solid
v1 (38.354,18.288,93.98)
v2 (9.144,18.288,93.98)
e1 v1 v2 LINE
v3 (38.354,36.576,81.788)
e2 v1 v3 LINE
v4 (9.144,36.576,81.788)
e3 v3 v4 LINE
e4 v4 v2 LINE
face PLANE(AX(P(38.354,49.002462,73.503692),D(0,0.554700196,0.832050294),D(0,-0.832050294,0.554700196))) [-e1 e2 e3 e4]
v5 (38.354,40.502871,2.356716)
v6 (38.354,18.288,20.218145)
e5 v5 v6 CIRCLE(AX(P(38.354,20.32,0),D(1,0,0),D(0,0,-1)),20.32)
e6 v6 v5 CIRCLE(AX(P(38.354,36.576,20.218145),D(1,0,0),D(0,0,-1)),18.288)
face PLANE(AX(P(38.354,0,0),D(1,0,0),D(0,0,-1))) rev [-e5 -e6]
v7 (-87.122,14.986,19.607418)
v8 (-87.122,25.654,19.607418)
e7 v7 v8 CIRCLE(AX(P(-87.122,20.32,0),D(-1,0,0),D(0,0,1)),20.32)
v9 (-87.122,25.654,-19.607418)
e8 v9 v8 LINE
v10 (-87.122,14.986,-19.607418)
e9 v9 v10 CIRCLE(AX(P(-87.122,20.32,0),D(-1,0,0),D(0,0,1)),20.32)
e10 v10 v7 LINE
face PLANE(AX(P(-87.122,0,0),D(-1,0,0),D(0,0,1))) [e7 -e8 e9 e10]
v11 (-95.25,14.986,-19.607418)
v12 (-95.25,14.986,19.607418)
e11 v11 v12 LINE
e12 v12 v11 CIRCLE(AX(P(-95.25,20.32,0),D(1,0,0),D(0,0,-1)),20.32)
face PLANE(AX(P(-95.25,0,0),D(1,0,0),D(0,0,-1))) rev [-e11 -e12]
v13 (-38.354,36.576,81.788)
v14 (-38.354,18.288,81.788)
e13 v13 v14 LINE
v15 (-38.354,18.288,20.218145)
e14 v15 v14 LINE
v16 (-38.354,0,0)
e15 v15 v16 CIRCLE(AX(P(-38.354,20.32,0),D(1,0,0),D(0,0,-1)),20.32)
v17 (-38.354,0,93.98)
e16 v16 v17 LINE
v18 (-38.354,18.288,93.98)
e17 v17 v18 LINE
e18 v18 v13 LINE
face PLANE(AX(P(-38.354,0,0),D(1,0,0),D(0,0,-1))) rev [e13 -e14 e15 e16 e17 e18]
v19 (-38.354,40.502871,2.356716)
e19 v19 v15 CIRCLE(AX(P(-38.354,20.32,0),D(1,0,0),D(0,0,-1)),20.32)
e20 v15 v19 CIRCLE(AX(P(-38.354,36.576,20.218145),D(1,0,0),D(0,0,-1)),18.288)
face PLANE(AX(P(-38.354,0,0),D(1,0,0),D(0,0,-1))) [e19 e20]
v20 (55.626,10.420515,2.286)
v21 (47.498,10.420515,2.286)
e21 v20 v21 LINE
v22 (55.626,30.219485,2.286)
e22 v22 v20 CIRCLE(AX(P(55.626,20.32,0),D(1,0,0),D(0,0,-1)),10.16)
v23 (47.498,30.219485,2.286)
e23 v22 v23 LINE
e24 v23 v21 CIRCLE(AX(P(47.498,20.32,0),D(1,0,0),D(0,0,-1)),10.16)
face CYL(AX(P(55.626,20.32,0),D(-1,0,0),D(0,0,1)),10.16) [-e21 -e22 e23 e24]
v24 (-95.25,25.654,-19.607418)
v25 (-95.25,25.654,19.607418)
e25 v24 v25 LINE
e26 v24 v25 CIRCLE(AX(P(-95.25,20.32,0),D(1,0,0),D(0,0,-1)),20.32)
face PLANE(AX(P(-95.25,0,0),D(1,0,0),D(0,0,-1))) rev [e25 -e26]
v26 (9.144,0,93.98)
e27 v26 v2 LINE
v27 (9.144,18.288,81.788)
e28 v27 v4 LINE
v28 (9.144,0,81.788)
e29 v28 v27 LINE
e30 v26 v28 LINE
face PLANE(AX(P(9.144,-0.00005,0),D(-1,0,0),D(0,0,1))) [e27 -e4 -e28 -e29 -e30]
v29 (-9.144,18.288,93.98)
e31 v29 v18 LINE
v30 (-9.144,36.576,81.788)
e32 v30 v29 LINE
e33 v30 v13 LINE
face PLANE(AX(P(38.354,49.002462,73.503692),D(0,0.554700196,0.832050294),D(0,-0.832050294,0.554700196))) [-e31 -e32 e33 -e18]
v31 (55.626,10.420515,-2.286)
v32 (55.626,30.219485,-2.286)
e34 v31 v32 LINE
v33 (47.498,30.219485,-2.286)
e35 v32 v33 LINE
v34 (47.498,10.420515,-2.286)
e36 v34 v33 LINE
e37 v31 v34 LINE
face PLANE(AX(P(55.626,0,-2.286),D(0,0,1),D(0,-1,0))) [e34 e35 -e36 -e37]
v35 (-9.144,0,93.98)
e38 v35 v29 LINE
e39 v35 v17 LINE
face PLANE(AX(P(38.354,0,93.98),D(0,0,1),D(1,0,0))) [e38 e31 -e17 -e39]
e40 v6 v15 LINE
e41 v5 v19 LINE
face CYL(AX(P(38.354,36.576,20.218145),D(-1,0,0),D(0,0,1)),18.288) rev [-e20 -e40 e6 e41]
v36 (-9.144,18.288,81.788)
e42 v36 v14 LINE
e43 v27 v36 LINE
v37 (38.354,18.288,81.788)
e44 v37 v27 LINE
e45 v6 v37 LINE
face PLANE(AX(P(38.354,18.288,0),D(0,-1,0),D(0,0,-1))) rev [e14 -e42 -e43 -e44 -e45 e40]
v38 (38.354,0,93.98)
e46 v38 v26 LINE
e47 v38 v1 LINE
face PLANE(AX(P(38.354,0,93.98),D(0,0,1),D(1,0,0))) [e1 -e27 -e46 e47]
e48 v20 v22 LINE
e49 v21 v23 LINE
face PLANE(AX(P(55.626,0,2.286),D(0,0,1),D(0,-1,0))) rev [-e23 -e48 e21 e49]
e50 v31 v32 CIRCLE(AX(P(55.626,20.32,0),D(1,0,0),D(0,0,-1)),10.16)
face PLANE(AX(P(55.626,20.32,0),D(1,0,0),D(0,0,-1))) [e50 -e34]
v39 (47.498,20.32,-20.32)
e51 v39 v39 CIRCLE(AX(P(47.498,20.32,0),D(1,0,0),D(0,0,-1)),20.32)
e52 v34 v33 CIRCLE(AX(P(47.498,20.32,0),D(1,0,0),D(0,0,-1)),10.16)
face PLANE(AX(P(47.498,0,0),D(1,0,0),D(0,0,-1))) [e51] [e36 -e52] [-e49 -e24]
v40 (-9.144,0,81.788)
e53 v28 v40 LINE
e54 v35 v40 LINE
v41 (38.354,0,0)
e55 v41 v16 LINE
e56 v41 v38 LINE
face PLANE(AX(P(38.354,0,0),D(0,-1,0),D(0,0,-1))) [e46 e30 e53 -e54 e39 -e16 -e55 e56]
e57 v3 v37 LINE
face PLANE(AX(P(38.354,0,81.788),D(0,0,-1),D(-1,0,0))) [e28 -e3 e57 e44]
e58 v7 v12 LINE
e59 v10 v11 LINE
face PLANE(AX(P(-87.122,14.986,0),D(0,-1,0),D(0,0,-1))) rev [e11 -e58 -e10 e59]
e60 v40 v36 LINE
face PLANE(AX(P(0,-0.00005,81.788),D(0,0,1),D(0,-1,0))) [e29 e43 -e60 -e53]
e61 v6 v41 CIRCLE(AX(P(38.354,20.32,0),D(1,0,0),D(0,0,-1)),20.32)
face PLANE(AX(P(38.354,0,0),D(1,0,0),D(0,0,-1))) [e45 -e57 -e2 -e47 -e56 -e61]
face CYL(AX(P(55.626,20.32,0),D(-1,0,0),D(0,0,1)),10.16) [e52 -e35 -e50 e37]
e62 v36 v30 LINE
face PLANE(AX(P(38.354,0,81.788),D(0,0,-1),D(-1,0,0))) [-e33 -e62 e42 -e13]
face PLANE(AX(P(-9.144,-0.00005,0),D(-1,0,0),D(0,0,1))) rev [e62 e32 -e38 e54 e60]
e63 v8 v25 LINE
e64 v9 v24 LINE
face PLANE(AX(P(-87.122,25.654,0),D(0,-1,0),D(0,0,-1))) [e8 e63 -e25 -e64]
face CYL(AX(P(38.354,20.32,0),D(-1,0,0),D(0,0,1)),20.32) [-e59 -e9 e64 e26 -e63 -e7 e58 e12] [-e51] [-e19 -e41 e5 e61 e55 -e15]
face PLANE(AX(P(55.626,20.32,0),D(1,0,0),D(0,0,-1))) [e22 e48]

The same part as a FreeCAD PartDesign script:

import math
import FreeCAD as App
import Part
import Sketcher
from FreeCAD import Vector
Q = App.Units.Quantity

doc = App.newDocument("Part")
body = doc.addObject("PartDesign::Body", "Body")

# Sketch on YZ plane
sketch1 = body.newObject("Sketcher::SketchObject", "Sketch")
sketch1.AttachmentSupport = (doc.getObject("YZ_Plane"), [""])
sketch1.MapMode = "FlatFace"
sketch1.addGeometry([
    Part.LineSegment(Vector(18.288, 20.218145, 0), Vector(18.288, 81.788, 0)),  # 0
    Part.LineSegment(Vector(18.288, 81.788, 0), Vector(36.576, 81.788, 0)),  # 1
    Part.LineSegment(Vector(36.576, 81.788, 0), Vector(18.288, 93.98, 0)),  # 2
    Part.LineSegment(Vector(18.288, 93.98, 0), Vector(0, 93.98, 0)),  # 3
    Part.LineSegment(Vector(0, 93.98, 0), Vector(0, 0, 0)),  # 4
    Part.ArcOfCircle(Part.Circle(Vector(20.32, 0, 0), Vector(0, 0, 1), 20.32), math.radians(-180), math.radians(6.660161)),  # 5
    Part.ArcOfCircle(Part.Circle(Vector(36.576, 20.218145, 0), Vector(0, 0, 1), 18.288), math.radians(-90), math.radians(-77.600669)),  # 6
    Part.ArcOfCircle(Part.Circle(Vector(36.576, 20.218145, 0), Vector(0, 0, 1), 18.288), math.radians(-180), math.radians(-90)),  # 7
], False)
sketch1.addConstraint([
    Sketcher.Constraint("Coincident", 0, 2, 1, 1),
    Sketcher.Constraint("Coincident", 1, 2, 2, 1),
    Sketcher.Constraint("Coincident", 2, 2, 3, 1),
    Sketcher.Constraint("Coincident", 3, 2, 4, 1),
    Sketcher.Constraint("Tangent", 4, 2, 5, 1),
    Sketcher.Constraint("Coincident", 5, 2, 6, 2),
    Sketcher.Constraint("Tangent", 6, 1, 7, 2),
    Sketcher.Constraint("Tangent", 7, 1, 0, 1),
    Sketcher.Constraint("Vertical", 0),
    Sketcher.Constraint("Horizontal", 1),
    Sketcher.Constraint("Horizontal", 3),
    Sketcher.Constraint("Vertical", 4),
    Sketcher.Constraint("Coincident", 4, 2, -1, 1),
    Sketcher.Constraint("Equal", 6, 7),
    Sketcher.Constraint("Vertical", 7, 3, 1, 2),
    Sketcher.Constraint("Vertical", 0, 2, 2, 2),
    Sketcher.Constraint("Vertical", 1, 2, 6, 1),
    Sketcher.Constraint("Equal", 1, 3),
    Sketcher.Constraint("Radius", 5, Q("0.8 in")),
    Sketcher.Constraint("Radius", 6, Q("0.72 in")),
    Sketcher.Constraint("DistanceY", 4, 2, 4, 1, Q("3.7 in")),
    Sketcher.Constraint("DistanceY", -1, 1, 0, 2, Q("3.22 in")),
    Sketcher.Constraint("DistanceY", 0, 1, 0, 2, Q("61.569855 mm")),
])
pad1 = body.newObject("PartDesign::Pad", "Pad")
pad1.Profile = sketch1
pad1.Length = Q("3.02 in")
pad1.Midplane = True

# Sketch on YZ plane
sketch2 = body.newObject("Sketcher::SketchObject", "Sketch001")
sketch2.AttachmentSupport = (doc.getObject("YZ_Plane"), [""])
sketch2.MapMode = "FlatFace"
sketch2.AttachmentOffset = App.Placement(Vector(0, 0, 1.51 * 25.4), App.Rotation())
sketch2.addGeometry(Part.Circle(Vector(20.32, 0, 0), Vector(0, 0, 1), 20.32), False)
sketch2.addConstraint([
    Sketcher.Constraint("PointOnObject", 0, 3, -1),
    Sketcher.Constraint("Diameter", 0, Q("1.6 in")),
    Sketcher.Constraint("DistanceX", -1, 1, 0, 3, Q("0.8 in")),
])
pad2 = body.newObject("PartDesign::Pad", "Pad001")
pad2.Profile = sketch2
pad2.Length = Q("0.36 in")

# Sketch on YZ plane
sketch3 = body.newObject("Sketcher::SketchObject", "Sketch002")
sketch3.AttachmentSupport = (doc.getObject("YZ_Plane"), [""])
sketch3.MapMode = "FlatFace"
sketch3.AttachmentOffset = App.Placement(Vector(0, 0, 1.87 * 25.4), App.Rotation())
sketch3.addGeometry([
    Part.LineSegment(Vector(10.420515, 2.286, 0), Vector(30.219485, 2.286, 0)),  # 0
    Part.ArcOfCircle(Part.Circle(Vector(20.32, 0, 0), Vector(0, 0, 1), 10.16), math.radians(13.002878), math.radians(18.138502)),  # 1
    Part.ArcOfCircle(Part.Circle(Vector(20.32, 0, 0), Vector(0, 0, 1), 10.16), math.radians(18.138502), math.radians(84.26083)),  # 2
    Part.ArcOfCircle(Part.Circle(Vector(20.32, 0, 0), Vector(0, 0, 1), 10.16), math.radians(84.26083), math.radians(166.997122)),  # 3
    Part.ArcOfCircle(Part.Circle(Vector(20.32, 0, 0), Vector(0, 0, 1), 10.16), math.radians(-90), math.radians(-13.002878)),  # 4
    Part.LineSegment(Vector(30.219485, -2.286, 0), Vector(10.420515, -2.286, 0)),  # 5
    Part.ArcOfCircle(Part.Circle(Vector(20.32, 0, 0), Vector(0, 0, 1), 10.16), math.radians(-166.997122), math.radians(-90)),  # 6
], False)
sketch3.addConstraint([
    Sketcher.Constraint("Coincident", 0, 2, 1, 1),
    Sketcher.Constraint("Tangent", 1, 2, 2, 1),
    Sketcher.Constraint("Tangent", 2, 2, 3, 1),
    Sketcher.Constraint("Coincident", 3, 2, 0, 1),
    Sketcher.Constraint("Coincident", 4, 2, 5, 1),
    Sketcher.Constraint("Coincident", 5, 2, 6, 1),
    Sketcher.Constraint("Tangent", 6, 2, 4, 1),
    Sketcher.Constraint("Horizontal", 0),
    Sketcher.Constraint("Horizontal", 5),
    Sketcher.Constraint("Coincident", 3, 3, 1, 3),
    Sketcher.Constraint("Coincident", 4, 3, 1, 3),
    Sketcher.Constraint("Equal", 3, 4),
    Sketcher.Constraint("Equal", 4, 6),
    Sketcher.Constraint("Symmetric", 0, 2, 4, 2, -1),
    Sketcher.Constraint("Vertical", 4, 3, 6, 2),
    Sketcher.Constraint("Radius", 1, Q("0.4 in")),
    Sketcher.Constraint("DistanceX", -1, 1, 1, 3, Q("0.8 in")),
    Sketcher.Constraint("DistanceY", -1, 1, 0, 2, Q("0.09 in")),
    Sketcher.Constraint("DistanceX", -1, 1, 2, 2, Q("0.84 in")),
    Sketcher.Constraint("DistanceY", -1, 1, 1, 2, Q("3.162961 mm")),
])
pad3 = body.newObject("PartDesign::Pad", "Pad002")
pad3.Profile = sketch3
pad3.Length = Q("0.32 in")

# Sketch on YZ plane
sketch4 = body.newObject("Sketcher::SketchObject", "Sketch003")
sketch4.AttachmentSupport = (doc.getObject("YZ_Plane"), [""])
sketch4.MapMode = "FlatFace"
sketch4.AttachmentOffset = App.Placement(Vector(0, 0, -1.51 * 25.4), App.Rotation())
sketch4.addGeometry(Part.Circle(Vector(20.32, 0, 0), Vector(0, 0, 1), 20.32), False)
sketch4.addConstraint([
    Sketcher.Constraint("PointOnObject", 0, 3, -1),
    Sketcher.Constraint("Diameter", 0, Q("1.6 in")),
    Sketcher.Constraint("DistanceX", -1, 1, 0, 3, Q("0.8 in")),
])
pad4 = body.newObject("PartDesign::Pad", "Pad003")
pad4.Profile = sketch4
pad4.Length = Q("2.24 in")
pad4.Reversed = True

# Sketch on YZ plane
sketch5 = body.newObject("Sketcher::SketchObject", "Sketch004")
sketch5.AttachmentSupport = (doc.getObject("YZ_Plane"), [""])
sketch5.MapMode = "FlatFace"
sketch5.AttachmentOffset = App.Placement(Vector(0, 0, -3.75 * 25.4), App.Rotation())
sketch5.addGeometry([
    Part.LineSegment(Vector(25.654, 19.607418, 0), Vector(25.654, -19.607418, 0)),  # 0
    Part.ArcOfCircle(Part.Circle(Vector(20.32, 0, 0), Vector(0, 0, 1), 20.32), math.radians(-105.218455), math.radians(-74.781545)),  # 1
    Part.LineSegment(Vector(14.986, -19.607418, 0), Vector(14.986, 19.607418, 0)),  # 2
    Part.ArcOfCircle(Part.Circle(Vector(20.32, 0, 0), Vector(0, 0, 1), 20.32), math.radians(90), math.radians(105.218455)),  # 3
    Part.ArcOfCircle(Part.Circle(Vector(20.32, 0, 0), Vector(0, 0, 1), 20.32), math.radians(74.781545), math.radians(90)),  # 4
], False)
sketch5.addConstraint([
    Sketcher.Constraint("Coincident", 0, 2, 1, 2),
    Sketcher.Constraint("Coincident", 1, 1, 2, 1),
    Sketcher.Constraint("Coincident", 2, 2, 3, 2),
    Sketcher.Constraint("Tangent", 3, 1, 4, 2),
    Sketcher.Constraint("Coincident", 4, 1, 0, 1),
    Sketcher.Constraint("Vertical", 0),
    Sketcher.Constraint("Vertical", 2),
    Sketcher.Constraint("Coincident", 3, 3, 1, 3),
    Sketcher.Constraint("Equal", 1, 3),
    Sketcher.Constraint("Equal", 3, 4),
    Sketcher.Constraint("PointOnObject", 1, 3, -1),
    Sketcher.Constraint("Horizontal", 0, 2, 1, 1),
    Sketcher.Constraint("Vertical", 4, 3, 3, 1),
    Sketcher.Constraint("Radius", 1, Q("0.8 in")),
    Sketcher.Constraint("DistanceX", -1, 1, 1, 3, Q("0.8 in")),
    Sketcher.Constraint("DistanceX", -1, 1, 0, 2, Q("1.01 in")),
])
pocket1 = body.newObject("PartDesign::Pocket", "Pocket")
pocket1.Profile = sketch5
pocket1.Length = Q("0.32 in")
pocket1.Reversed = True

# Sketch on XZ plane
sketch6 = body.newObject("Sketcher::SketchObject", "Sketch005")
sketch6.AttachmentSupport = (doc.getObject("XZ_Plane"), [""])
sketch6.MapMode = "FlatFace"
sketch6.AttachmentOffset = App.Placement(Vector(0, 0, -0.72 * 25.4), App.Rotation())
sketch6.addGeometry([
    Part.LineSegment(Vector(-9.144, 81.788, 0), Vector(-9.144, 93.98, 0)),
    Part.LineSegment(Vector(-9.144, 93.98, 0), Vector(9.144, 93.98, 0)),
    Part.LineSegment(Vector(9.144, 93.98, 0), Vector(9.144, 81.788, 0)),
    Part.LineSegment(Vector(9.144, 81.788, 0), Vector(-9.144, 81.788, 0)),
], False)
sketch6.addConstraint([
    Sketcher.Constraint("Coincident", 0, 2, 1, 1),
    Sketcher.Constraint("Coincident", 1, 2, 2, 1),
    Sketcher.Constraint("Coincident", 2, 2, 3, 1),
    Sketcher.Constraint("Coincident", 3, 2, 0, 1),
    Sketcher.Constraint("Vertical", 0),
    Sketcher.Constraint("Horizontal", 1),
    Sketcher.Constraint("Vertical", 2),
    Sketcher.Constraint("Horizontal", 3),
    Sketcher.Constraint("DistanceX", 1, 1, 1, 2, Q("0.72 in")),
    Sketcher.Constraint("DistanceY", 0, 1, 0, 2, Q("0.48 in")),
    Sketcher.Constraint("DistanceY", -1, 1, 0, 2, Q("3.7 in")),
    Sketcher.Constraint("DistanceX", 0, 2, -1, 1, Q("0.36 in")),
])
pocket2 = body.newObject("PartDesign::Pocket", "Pocket001")
pocket2.Profile = sketch6
pocket2.Type = "ThroughAll"
pocket2.Midplane = True

doc.recompute()
